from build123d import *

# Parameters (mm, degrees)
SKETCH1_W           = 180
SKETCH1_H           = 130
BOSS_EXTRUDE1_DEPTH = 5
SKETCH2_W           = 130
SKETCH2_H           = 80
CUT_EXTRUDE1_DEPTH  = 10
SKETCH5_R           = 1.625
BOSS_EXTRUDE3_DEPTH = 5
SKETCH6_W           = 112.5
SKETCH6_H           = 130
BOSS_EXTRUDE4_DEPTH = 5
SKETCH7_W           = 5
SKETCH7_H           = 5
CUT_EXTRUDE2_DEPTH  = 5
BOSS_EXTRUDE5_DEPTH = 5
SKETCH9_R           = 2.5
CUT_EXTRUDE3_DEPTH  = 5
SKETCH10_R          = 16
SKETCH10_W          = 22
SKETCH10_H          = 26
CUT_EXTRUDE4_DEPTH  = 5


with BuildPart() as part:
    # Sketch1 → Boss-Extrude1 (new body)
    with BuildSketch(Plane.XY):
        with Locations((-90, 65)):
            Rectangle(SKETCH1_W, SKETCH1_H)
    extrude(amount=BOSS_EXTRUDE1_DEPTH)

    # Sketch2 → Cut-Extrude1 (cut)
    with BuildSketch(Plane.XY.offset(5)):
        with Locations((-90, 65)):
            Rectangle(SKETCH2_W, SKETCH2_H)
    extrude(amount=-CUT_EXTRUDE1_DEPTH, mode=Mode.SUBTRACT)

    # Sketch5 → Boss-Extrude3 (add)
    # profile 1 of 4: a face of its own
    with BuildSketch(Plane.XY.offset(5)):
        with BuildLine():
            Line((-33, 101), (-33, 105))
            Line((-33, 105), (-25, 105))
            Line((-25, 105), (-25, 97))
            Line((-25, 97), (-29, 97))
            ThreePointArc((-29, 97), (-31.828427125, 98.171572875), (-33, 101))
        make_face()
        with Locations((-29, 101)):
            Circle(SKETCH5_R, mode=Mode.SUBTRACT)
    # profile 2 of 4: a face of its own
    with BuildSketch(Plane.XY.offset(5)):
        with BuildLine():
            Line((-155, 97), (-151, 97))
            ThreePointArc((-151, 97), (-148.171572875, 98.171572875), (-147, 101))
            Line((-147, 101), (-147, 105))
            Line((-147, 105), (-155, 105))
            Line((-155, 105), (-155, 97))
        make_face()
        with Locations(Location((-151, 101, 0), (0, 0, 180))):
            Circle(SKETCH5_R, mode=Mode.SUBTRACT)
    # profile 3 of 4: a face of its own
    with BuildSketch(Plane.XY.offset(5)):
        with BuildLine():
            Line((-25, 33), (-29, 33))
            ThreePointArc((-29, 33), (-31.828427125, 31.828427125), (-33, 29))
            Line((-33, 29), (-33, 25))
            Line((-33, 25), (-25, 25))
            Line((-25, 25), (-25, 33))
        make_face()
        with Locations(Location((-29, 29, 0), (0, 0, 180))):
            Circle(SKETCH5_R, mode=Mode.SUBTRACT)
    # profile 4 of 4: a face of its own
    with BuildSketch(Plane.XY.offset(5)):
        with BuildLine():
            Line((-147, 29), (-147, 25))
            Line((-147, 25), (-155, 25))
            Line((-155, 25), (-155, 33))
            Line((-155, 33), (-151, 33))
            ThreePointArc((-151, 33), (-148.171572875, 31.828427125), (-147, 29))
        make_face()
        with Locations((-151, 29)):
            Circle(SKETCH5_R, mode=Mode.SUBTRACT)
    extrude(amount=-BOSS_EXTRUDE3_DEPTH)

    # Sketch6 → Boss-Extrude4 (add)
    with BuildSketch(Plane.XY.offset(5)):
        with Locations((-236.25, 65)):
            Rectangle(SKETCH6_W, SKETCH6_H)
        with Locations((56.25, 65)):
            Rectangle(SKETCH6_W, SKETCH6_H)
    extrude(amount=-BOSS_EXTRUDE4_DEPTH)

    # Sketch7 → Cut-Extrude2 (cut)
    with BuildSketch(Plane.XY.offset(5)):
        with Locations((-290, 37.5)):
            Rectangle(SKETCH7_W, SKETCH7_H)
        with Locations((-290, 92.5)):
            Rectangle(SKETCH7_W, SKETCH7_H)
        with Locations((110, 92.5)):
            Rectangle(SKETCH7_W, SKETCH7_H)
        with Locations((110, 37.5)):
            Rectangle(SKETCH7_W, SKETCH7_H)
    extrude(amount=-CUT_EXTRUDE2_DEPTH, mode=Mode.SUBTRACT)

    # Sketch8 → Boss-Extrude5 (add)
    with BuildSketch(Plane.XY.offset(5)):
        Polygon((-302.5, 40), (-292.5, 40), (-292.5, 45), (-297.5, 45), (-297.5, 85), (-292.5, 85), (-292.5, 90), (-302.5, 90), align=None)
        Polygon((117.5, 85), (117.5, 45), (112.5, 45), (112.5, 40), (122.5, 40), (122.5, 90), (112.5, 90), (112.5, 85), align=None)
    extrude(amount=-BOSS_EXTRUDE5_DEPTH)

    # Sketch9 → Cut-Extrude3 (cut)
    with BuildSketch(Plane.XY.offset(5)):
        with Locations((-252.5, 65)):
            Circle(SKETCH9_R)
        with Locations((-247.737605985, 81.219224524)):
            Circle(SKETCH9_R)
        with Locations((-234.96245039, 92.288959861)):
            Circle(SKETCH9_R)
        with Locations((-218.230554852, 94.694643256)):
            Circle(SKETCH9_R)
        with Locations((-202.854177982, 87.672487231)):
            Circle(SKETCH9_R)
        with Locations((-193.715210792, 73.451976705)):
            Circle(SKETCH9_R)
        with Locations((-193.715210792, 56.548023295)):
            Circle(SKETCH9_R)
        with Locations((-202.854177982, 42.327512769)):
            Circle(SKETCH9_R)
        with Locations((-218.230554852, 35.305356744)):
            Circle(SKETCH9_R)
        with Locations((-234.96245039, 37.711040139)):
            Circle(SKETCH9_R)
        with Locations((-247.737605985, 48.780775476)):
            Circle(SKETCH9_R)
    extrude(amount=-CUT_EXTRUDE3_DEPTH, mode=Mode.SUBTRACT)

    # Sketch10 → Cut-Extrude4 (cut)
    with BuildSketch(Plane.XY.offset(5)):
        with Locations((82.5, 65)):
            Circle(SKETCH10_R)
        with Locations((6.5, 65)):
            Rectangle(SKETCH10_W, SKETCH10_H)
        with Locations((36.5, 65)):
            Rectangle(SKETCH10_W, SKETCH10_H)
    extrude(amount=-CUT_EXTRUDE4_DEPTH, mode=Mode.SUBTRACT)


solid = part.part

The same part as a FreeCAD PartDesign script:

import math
import FreeCAD as App
import Part
import Sketcher
from FreeCAD import Vector
Q = App.Units.Quantity


def add_polygon(sketch, points):
    """Adds a closed chain of lines whose ends are joined by coincident constraints."""
    first, n = sketch.GeometryCount, len(points)
    for a, b in zip(points, points[1:] + points[:1]):
        sketch.addGeometry(Part.LineSegment(App.Vector(*a, 0), App.Vector(*b, 0)), False)
    for i in range(n):
        sketch.addConstraint(Sketcher.Constraint("Coincident", first + i, 2, first + (i + 1) % n, 1))

doc = App.newDocument("Part")
params = doc.addObject("Spreadsheet::Sheet", "Params")
for row, (alias, value) in enumerate([
    ("sketch1_width", "180 mm"),
    ("sketch1_height", "130 mm"),
    ("pad1_length", "5 mm"),
    ("sketch2_width", "130 mm"),
    ("sketch2_height", "80 mm"),
    ("pocket1_length", "10 mm"),
    ("sketch3_radius", "4 mm"),
    ("sketch3_diameter", "3.25 mm"),
    ("sketch3_width", "4 mm"),
    ("pad2_length", "5 mm"),
    ("sketch4_height", "130 mm"),
    ("sketch4_width", "112.5 mm"),
    ("pad3_length", "5 mm"),
    ("sketch5_width", "5 mm"),
    ("pocket2_length", "5 mm"),
    ("sketch6_width", "10 mm"),
    ("sketch6_width2", "5 mm"),
    ("sketch6_height", "40 mm"),
    ("pad4_length", "5 mm"),
    ("sketch7_diameter", "5 mm"),
    ("pocket3_length", "5 mm"),
    ("sketch8_diameter", "32 mm"),
    ("sketch8_width", "22 mm"),
    ("sketch8_height", "26 mm"),
    ("pocket4_length", "5 mm"),
], start=1):
    params.set(f"A{row}", alias)
    params.set(f"B{row}", "=" + value)
    params.setAlias(f"B{row}", alias)

body = doc.addObject("PartDesign::Body", "Body")

sketch1 = doc.addObject("Sketcher::SketchObject", "Sketch")
body.addObject(sketch1)
sketch1.AttachmentSupport = (doc.XY_Plane, [""])
sketch1.MapMode = "FlatFace"
add_polygon(sketch1, [(-180, 130), (-180, 0), (0, 0), (0, 130)])
sketch1.addConstraint([
    Sketcher.Constraint("Vertical", 0),
    Sketcher.Constraint("Horizontal", 1),
    Sketcher.Constraint("Vertical", 2),
    Sketcher.Constraint("Horizontal", 3),
    Sketcher.Constraint("Coincident", 1, 2, -1, 1),
    Sketcher.Constraint("DistanceX", 1, 1, 1, 2, Q("180 mm")),
    Sketcher.Constraint("DistanceY", 0, 2, 0, 1, Q("130 mm")),
])
sketch1.setExpression("Constraints[9]", "Params.sketch1_width")
sketch1.setExpression("Constraints[10]", "Params.sketch1_height")
pad1 = doc.addObject("PartDesign::Pad", "Pad")
body.addObject(pad1)
pad1.Profile = sketch1
pad1.setExpression("Length", "Params.pad1_length")

sketch2 = doc.addObject("Sketcher::SketchObject", "Sketch001")
body.addObject(sketch2)
sketch2.AttachmentSupport = (doc.XY_Plane, [""])
sketch2.MapMode = "FlatFace"
sketch2.AttachmentOffset = App.Placement(Vector(0, 0, 5), App.Rotation())
add_polygon(sketch2, [(-155, 105), (-155, 25), (-25, 25), (-25, 105)])
sketch2.addConstraint([
    Sketcher.Constraint("Vertical", 0),
    Sketcher.Constraint("Horizontal", 1),
    Sketcher.Constraint("Vertical", 2),
    Sketcher.Constraint("Horizontal", 3),
    Sketcher.Constraint("DistanceX", 1, 1, 1, 2, Q("130 mm")),
    Sketcher.Constraint("DistanceY", 0, 2, 0, 1, Q("80 mm")),
    Sketcher.Constraint("DistanceX", 0, 2, -1, 1, Q("155 mm")),
    Sketcher.Constraint("DistanceY", -1, 1, 0, 2, Q("25 mm")),
])
sketch2.setExpression("Constraints[8]", "Params.sketch2_width")
sketch2.setExpression("Constraints[9]", "Params.sketch2_height")
pocket1 = doc.addObject("PartDesign::Pocket", "Pocket")
body.addObject(pocket1)
pocket1.Profile = sketch2
pocket1.setExpression("Length", "Params.pocket1_length")

sketch3 = doc.addObject("Sketcher::SketchObject", "Sketch002")
body.addObject(sketch3)
sketch3.AttachmentSupport = (doc.XY_Plane, [""])
sketch3.MapMode = "FlatFace"
sketch3.AttachmentOffset = App.Placement(Vector(0, 0, 5), App.Rotation())
sketch3.addGeometry([
    Part.LineSegment(Vector(-33, 105, 0), Vector(-33, 101, 0)),
    Part.ArcOfCircle(Part.Circle(Vector(-29, 101, 0), Vector(0, 0, 1), 4), math.radians(180), math.radians(270)),
    Part.LineSegment(Vector(-29, 97, 0), Vector(-25, 97, 0)),
    Part.LineSegment(Vector(-25, 97, 0), Vector(-25, 105, 0)),
    Part.LineSegment(Vector(-25, 105, 0), Vector(-33, 105, 0)),
    Part.Circle(Vector(-29, 101, 0), Vector(0, 0, 1), 1.625),
    Part.LineSegment(Vector(-155, 97, 0), Vector(-151, 97, 0)),
    Part.ArcOfCircle(Part.Circle(Vector(-151, 101, 0), Vector(0, 0, 1), 4), math.radians(-90), math.radians(0)),
    Part.LineSegment(Vector(-147, 101, 0), Vector(-147, 105, 0)),
    Part.LineSegment(Vector(-147, 105, 0), Vector(-155, 105, 0)),
    Part.LineSegment(Vector(-155, 105, 0), Vector(-155, 97, 0)),
    Part.Circle(Vector(-151, 101, 0), Vector(0, 0, 1), 1.625),
    Part.LineSegment(Vector(-25, 33, 0), Vector(-29, 33, 0)),
    Part.ArcOfCircle(Part.Circle(Vector(-29, 29, 0), Vector(0, 0, 1), 4), math.radians(90), math.radians(180)),
    Part.LineSegment(Vector(-33, 29, 0), Vector(-33, 25, 0)),
    Part.LineSegment(Vector(-33, 25, 0), Vector(-25, 25, 0)),
    Part.LineSegment(Vector(-25, 25, 0), Vector(-25, 33, 0)),
    Part.Circle(Vector(-29, 29, 0), Vector(0, 0, 1), 1.625),
    Part.LineSegment(Vector(-147, 25, 0), Vector(-147, 29, 0)),
    Part.ArcOfCircle(Part.Circle(Vector(-151, 29, 0), Vector(0, 0, 1), 4), math.radians(0), math.radians(90)),
    Part.LineSegment(Vector(-151, 33, 0), Vector(-155, 33, 0)),
    Part.LineSegment(Vector(-155, 33, 0), Vector(-155, 25, 0)),
    Part.LineSegment(Vector(-155, 25, 0), Vector(-147, 25, 0)),
    Part.Circle(Vector(-151, 29, 0), Vector(0, 0, 1), 1.625),
], False)
sketch3.addConstraint([
    Sketcher.Constraint("Tangent", 0, 2, 1, 1),
    Sketcher.Constraint("Tangent", 1, 2, 2, 1),
    Sketcher.Constraint("Coincident", 2, 2, 3, 1),
    Sketcher.Constraint("Coincident", 3, 2, 4, 1),
    Sketcher.Constraint("Coincident", 4, 2, 0, 1),
    Sketcher.Constraint("Tangent", 6, 2, 7, 1),
    Sketcher.Constraint("Tangent", 7, 2, 8, 1),
    Sketcher.Constraint("Coincident", 8, 2, 9, 1),
    Sketcher.Constraint("Coincident", 9, 2, 10, 1),
    Sketcher.Constraint("Coincident", 10, 2, 6, 1),
    Sketcher.Constraint("Tangent", 12, 2, 13, 1),
    Sketcher.Constraint("Tangent", 13, 2, 14, 1),
    Sketcher.Constraint("Coincident", 14, 2, 15, 1),
    Sketcher.Constraint("Coincident", 15, 2, 16, 1),
    Sketcher.Constraint("Coincident", 16, 2, 12, 1),
    Sketcher.Constraint("Tangent", 18, 2, 19, 1),
    Sketcher.Constraint("Tangent", 19, 2, 20, 1),
    Sketcher.Constraint("Coincident", 20, 2, 21, 1),
    Sketcher.Constraint("Coincident", 21, 2, 22, 1),
    Sketcher.Constraint("Coincident", 22, 2, 18, 1),
    Sketcher.Constraint("Vertical", 0),
    Sketcher.Constraint("Horizontal", 2),
    Sketcher.Constraint("Vertical", 3),
    Sketcher.Constraint("Horizontal", 4),
    Sketcher.Constraint("Horizontal", 6),
    Sketcher.Constraint("Vertical", 8),
    Sketcher.Constraint("Horizontal", 9),
    Sketcher.Constraint("Vertical", 10),
    Sketcher.Constraint("Horizontal", 12),
    Sketcher.Constraint("Vertical", 14),
    Sketcher.Constraint("Horizontal", 15),
    Sketcher.Constraint("Vertical", 16),
    Sketcher.Constraint("Vertical", 18),
    Sketcher.Constraint("Horizontal", 20),
    Sketcher.Constraint("Vertical", 21),
    Sketcher.Constraint("Horizontal", 22),
    Sketcher.Constraint("Coincident", 5, 3, 1, 3),
    Sketcher.Constraint("Coincident", 11, 3, 7, 3),
    Sketcher.Constraint("Coincident", 17, 3, 13, 3),
    Sketcher.Constraint("Coincident", 23, 3, 19, 3),
    Sketcher.Constraint("Equal", 1, 7),
    Sketcher.Constraint("Equal", 5, 11),
    Sketcher.Constraint("Equal", 7, 13),
    Sketcher.Constraint("Equal", 11, 17),
    Sketcher.Constraint("Equal", 13, 19),
    Sketcher.Constraint("Equal", 17, 23),
    Sketcher.Constraint("Horizontal", 5, 3, 7, 3),
    Sketcher.Constraint("Horizontal", 17, 3, 19, 3),
    Sketcher.Constraint("Horizontal", 4, 2, 8, 2),
    Sketcher.Constraint("Horizontal", 15, 2, 21, 2),
    Sketcher.Constraint("Vertical", 5, 3, 13, 3),
    Sketcher.Constraint("Vertical", 11, 3, 19, 3),
    Sketcher.Constraint("Vertical", 3, 2, 15, 2),
    Sketcher.Constraint("Vertical", 10, 2, 20, 2),
    Sketcher.Constraint("Equal", 2, 6),
    Sketcher.Constraint("Equal", 20, 0),
    Sketcher.Constraint("Equal", 8, 14),
    Sketcher.Constraint("Radius", 1, Q("4 mm")),
    Sketcher.Constraint("Diameter", 5, Q("3.25 mm")),
    Sketcher.Constraint("DistanceX", 2, 1, 2, 2, Q("4 mm")),
    Sketcher.Constraint("DistanceX", 1, 3, -1, 1, Q("29 mm")),
    Sketcher.Constraint("DistanceY", -1, 1, 1, 3, Q("101 mm")),
    Sketcher.Constraint("DistanceX", 7, 3, -1, 1, Q("151 mm")),
    Sketcher.Constraint("DistanceY", -1, 1, 13, 3, Q("29 mm")),
])
sketch3.setExpression("Constraints[57]", "Params.sketch3_radius")
sketch3.setExpression("Constraints[58]", "Params.sketch3_diameter")
sketch3.setExpression("Constraints[59]", "Params.sketch3_width")
pad2 = doc.addObject("PartDesign::Pad", "Pad001")
body.addObject(pad2)
pad2.Profile = sketch3
pad2.setExpression("Length", "Params.pad2_length")
pad2.Reversed = True

sketch4 = doc.addObject("Sketcher::SketchObject", "Sketch003")
body.addObject(sketch4)
sketch4.AttachmentSupport = (doc.XY_Plane, [""])
sketch4.MapMode = "FlatFace"
sketch4.AttachmentOffset = App.Placement(Vector(0, 0, 5), App.Rotation())
add_polygon(sketch4, [(-292.5, 130), (-292.5, 0), (-180, 0), (-180, 130)])
add_polygon(sketch4, [(0, 130), (0, 0), (112.5, 0), (112.5, 130)])
sketch4.addConstraint([
    Sketcher.Constraint("Vertical", 0),
    Sketcher.Constraint("Horizontal", 1),
    Sketcher.Constraint("Vertical", 2),
    Sketcher.Constraint("Horizontal", 3),
    Sketcher.Constraint("Vertical", 4),
    Sketcher.Constraint("Horizontal", 5),
    Sketcher.Constraint("Vertical", 6),
    Sketcher.Constraint("Horizontal", 7),
    Sketcher.Constraint("Coincident", 4, 2, -1, 1),
    Sketcher.Constraint("PointOnObject", 0, 2, -1),
    Sketcher.Constraint("Horizontal", 3, 2, 6, 2),
    Sketcher.Constraint("Equal", 3, 5),
    Sketcher.Constraint("DistanceY", 0, 2, 0, 1, Q("130 mm")),
    Sketcher.Constraint("DistanceX", 1, 1, 1, 2, Q("112.5 mm")),
    Sketcher.Constraint("DistanceX", 1, 2, -1, 1, Q("180 mm")),
])
sketch4.setExpression("Constraints[20]", "Params.sketch4_height")
sketch4.setExpression("Constraints[21]", "Params.sketch4_width")
pad3 = doc.addObject("PartDesign::Pad", "Pad002")
body.addObject(pad3)
pad3.Profile = sketch4
pad3.setExpression("Length", "Params.pad3_length")
pad3.Reversed = True

sketch5 = doc.addObject("Sketcher::SketchObject", "Sketch004")
body.addObject(sketch5)
sketch5.AttachmentSupport = (doc.XY_Plane, [""])
sketch5.MapMode = "FlatFace"
sketch5.AttachmentOffset = App.Placement(Vector(0, 0, 5), App.Rotation())
add_polygon(sketch5, [(-292.5, 40), (-292.5, 35), (-287.5, 35), (-287.5, 40)])
add_polygon(sketch5, [(-292.5, 95), (-292.5, 90), (-287.5, 90), (-287.5, 95)])
add_polygon(sketch5, [(107.5, 95), (107.5, 90), (112.5, 90), (112.5, 95)])
add_polygon(sketch5, [(107.5, 40), (107.5, 35), (112.5, 35), (112.5, 40)])
sketch5.addConstraint([
    Sketcher.Constraint("Vertical", 0),
    Sketcher.Constraint("Horizontal", 1),
    Sketcher.Constraint("Vertical", 2),
    Sketcher.Constraint("Horizontal", 3),
    Sketcher.Constraint("Vertical", 4),
    Sketcher.Constraint("Horizontal", 5),
    Sketcher.Constraint("Vertical", 6),
    Sketcher.Constraint("Horizontal", 7),
    Sketcher.Constraint("Vertical", 8),
    Sketcher.Constraint("Horizontal", 9),
    Sketcher.Constraint("Vertical", 10),
    Sketcher.Constraint("Horizontal", 11),
    Sketcher.Constraint("Vertical", 12),
    Sketcher.Constraint("Horizontal", 13),
    Sketcher.Constraint("Vertical", 14),
    Sketcher.Constraint("Horizontal", 15),
    Sketcher.Constraint("Horizontal", 5, 2, 8, 2),
    Sketcher.Constraint("Horizontal", 7, 2, 10, 2),
    Sketcher.Constraint("Horizontal", 1, 2, 12, 2),
    Sketcher.Constraint("Horizontal", 3, 2, 14, 2),
    Sketcher.Constraint("Vertical", 3, 2, 4, 2),
    Sketcher.Constraint("Vertical", 2, 2, 5, 2),
    Sketcher.Constraint("Vertical", 11, 2, 12, 2),
    Sketcher.Constraint("Vertical", 10, 2, 13, 2),
    Sketcher.Constraint("Equal", 7, 9),
    Sketcher.Constraint("Equal", 15, 0),
    Sketcher.Constraint("Equal", 2, 4),
    Sketcher.Constraint("DistanceX", 1, 1, 1, 2, Q("5 mm")),
    Sketcher.Constraint("DistanceY", -1, 1, 0, 2, Q("35 mm")),
    Sketcher.Constraint("DistanceY", -1, 1, 4, 2, Q("90 mm")),
    Sketcher.Constraint("DistanceX", 5, 2, 8, 2, Q("395 mm")),
    Sketcher.Constraint("DistanceX", 0, 2, -1, 1, Q("292.5 mm")),
])
sketch5.setExpression("Constraints[43]", "Params.sketch5_width")
pocket2 = doc.addObject("PartDesign::Pocket", "Pocket001")
body.addObject(pocket2)
pocket2.Profile = sketch5
pocket2.setExpression("Length", "Params.pocket2_length")

sketch6 = doc.addObject("Sketcher::SketchObject", "Sketch005")
body.addObject(sketch6)
sketch6.AttachmentSupport = (doc.XY_Plane, [""])
sketch6.MapMode = "FlatFace"
sketch6.AttachmentOffset = App.Placement(Vector(0, 0, 5), App.Rotation())
add_polygon(sketch6, [(-302.5, 40), (-292.5, 40), (-292.5, 45), (-297.5, 45), (-297.5, 85), (-292.5, 85), (-292.5, 90), (-302.5, 90)])
add_polygon(sketch6, [(117.5, 85), (117.5, 45), (112.5, 45), (112.5, 40), (122.5, 40), (122.5, 90), (112.5, 90), (112.5, 85)])
sketch6.addConstraint([
    Sketcher.Constraint("Horizontal", 0),
    Sketcher.Constraint("Vertical", 1),
    Sketcher.Constraint("Horizontal", 2),
    Sketcher.Constraint("Vertical", 3),
    Sketcher.Constraint("Horizontal", 4),
    Sketcher.Constraint("Vertical", 5),
    Sketcher.Constraint("Horizontal", 6),
    Sketcher.Constraint("Vertical", 7),
    Sketcher.Constraint("Vertical", 8),
    Sketcher.Constraint("Horizontal", 9),
    Sketcher.Constraint("Vertical", 10),
    Sketcher.Constraint("Horizontal", 11),
    Sketcher.Constraint("Vertical", 12),
    Sketcher.Constraint("Horizontal", 13),
    Sketcher.Constraint("Vertical", 14),
    Sketcher.Constraint("Horizontal", 15),
    Sketcher.Constraint("Horizontal", 2, 2, 8, 2),
    Sketcher.Constraint("Horizontal", 7, 2, 10, 2),
    Sketcher.Constraint("Horizontal", 6, 2, 12, 2),
    Sketcher.Constraint("Horizontal", 4, 2, 14, 2),
    Sketcher.Constraint("Vertical", 1, 2, 4, 2),
    Sketcher.Constraint("Vertical", 10, 2, 13, 2),
    Sketcher.Constraint("Equal", 4, 9),
    Sketcher.Constraint("Equal", 6, 11),
    Sketcher.Constraint("Equal", 15, 1),
    Sketcher.Constraint("Equal", 1, 5),
    Sketcher.Constraint("DistanceX", 0, 1, 0, 2, Q("10 mm")),
    Sketcher.Constraint("DistanceX", 2, 2, 2, 1, Q("5 mm")),
    Sketcher.Constraint("DistanceY", 3, 1, 3, 2, Q("40 mm")),
    Sketcher.Constraint("DistanceY", -1, 1, 0, 2, Q("40 mm")),
    Sketcher.Constraint("DistanceX", 1, 2, 8, 2, Q("410 mm")),
    Sketcher.Constraint("DistanceX", 0, 2, -1, 1, Q("292.5 mm")),
])
sketch6.setExpression("Constraints[42]", "Params.sketch6_width")
sketch6.setExpression("Constraints[43]", "Params.sketch6_width2")
sketch6.setExpression("Constraints[44]", "Params.sketch6_height")
pad4 = doc.addObject("PartDesign::Pad", "Pad003")
body.addObject(pad4)
pad4.Profile = sketch6
pad4.setExpression("Length", "Params.pad4_length")
pad4.Reversed = True

sketch7 = doc.addObject("Sketcher::SketchObject", "Sketch006")
body.addObject(sketch7)
sketch7.AttachmentSupport = (doc.XY_Plane, [""])
sketch7.MapMode = "FlatFace"
sketch7.AttachmentOffset = App.Placement(Vector(0, 0, 5), App.Rotation())
sketch7.addGeometry([
    Part.Circle(Vector(-252.5, 65, 0), Vector(0, 0, 1), 2.5),
    Part.Circle(Vector(-247.737606, 81.219225, 0), Vector(0, 0, 1), 2.5),
    Part.Circle(Vector(-234.96245, 92.28896, 0), Vector(0, 0, 1), 2.5),
    Part.Circle(Vector(-218.230555, 94.694643, 0), Vector(0, 0, 1), 2.5),
    Part.Circle(Vector(-202.854178, 87.672487, 0), Vector(0, 0, 1), 2.5),
    Part.Circle(Vector(-193.715211, 73.451977, 0), Vector(0, 0, 1), 2.5),
    Part.Circle(Vector(-193.715211, 56.548023, 0), Vector(0, 0, 1), 2.5),
    Part.Circle(Vector(-202.854178, 42.327513, 0), Vector(0, 0, 1), 2.5),
    Part.Circle(Vector(-218.230555, 35.305357, 0), Vector(0, 0, 1), 2.5),
    Part.Circle(Vector(-234.96245, 37.71104, 0), Vector(0, 0, 1), 2.5),
    Part.Circle(Vector(-247.737606, 48.780775, 0), Vector(0, 0, 1), 2.5),
], False)
sketch7.addConstraint([
    Sketcher.Constraint("Equal", 0, 1),
    Sketcher.Constraint("Equal", 1, 2),
    Sketcher.Constraint("Equal", 2, 3),
    Sketcher.Constraint("Equal", 3, 4),
    Sketcher.Constraint("Equal", 4, 5),
    Sketcher.Constraint("Equal", 5, 6),
    Sketcher.Constraint("Equal", 6, 7),
    Sketcher.Constraint("Equal", 7, 8),
    Sketcher.Constraint("Equal", 8, 9),
    Sketcher.Constraint("Equal", 9, 10),
    Sketcher.Constraint("Vertical", 5, 3, 6, 3),
    Sketcher.Constraint("Vertical", 4, 3, 7, 3),
    Sketcher.Constraint("Vertical", 3, 3, 8, 3),
    Sketcher.Constraint("Vertical", 2, 3, 9, 3),
    Sketcher.Constraint("Vertical", 1, 3, 10, 3),
    Sketcher.Constraint("Diameter", 0, Q("5 mm")),
    Sketcher.Constraint("DistanceY", -1, 1, 0, 3, Q("65 mm")),
    Sketcher.Constraint("DistanceX", 0, 3, -1, 1, Q("252.5 mm")),
    Sketcher.Constraint("DistanceX", 2, 3, -1, 1, Q("234.96245 mm")),
    Sketcher.Constraint("DistanceY", -1, 1, 2, 3, Q("92.28896 mm")),
    Sketcher.Constraint("DistanceX", 5, 3, -1, 1, Q("193.715211 mm")),
    Sketcher.Constraint("DistanceY", -1, 1, 9, 3, Q("37.71104 mm")),
    Sketcher.Constraint("DistanceX", 1, 3, 3, 3, Q("29.507051 mm")),
    Sketcher.Constraint("DistanceY", 1, 3, 3, 3, Q("13.475419 mm")),
    Sketcher.Constraint("DistanceX", 1, 3, 4, 3, Q("44.883428 mm")),
    Sketcher.Constraint("DistanceY", 5, 3, 4, 3, Q("14.220511 mm")),
    Sketcher.Constraint("DistanceY", 6, 3, 3, 3, Q("38.14662 mm")),
    Sketcher.Constraint("DistanceY", 7, 3, 6, 3, Q("14.220511 mm")),
    Sketcher.Constraint("DistanceY", 8, 3, 5, 3, Q("38.14662 mm")),
    Sketcher.Constraint("DistanceY", 8, 3, 10, 3, Q("13.475419 mm")),
    Sketcher.Constraint("DistanceY", 10, 3, 1, 3, Q("32.438449 mm")),
    Sketcher.Constraint("DistanceX", 1, 3, -1, 1, Q("247.737606 mm")),
    Sketcher.Constraint("DistanceY", -1, 1, 1, 3, Q("81.219225 mm")),
])
sketch7.setExpression("Constraints[15]", "Params.sketch7_diameter")
pocket3 = doc.addObject("PartDesign::Pocket", "Pocket002")
body.addObject(pocket3)
pocket3.Profile = sketch7
pocket3.setExpression("Length", "Params.pocket3_length")

sketch8 = doc.addObject("Sketcher::SketchObject", "Sketch007")
body.addObject(sketch8)
sketch8.AttachmentSupport = (doc.XY_Plane, [""])
sketch8.MapMode = "FlatFace"
sketch8.AttachmentOffset = App.Placement(Vector(0, 0, 5), App.Rotation())
sketch8.addGeometry(Part.Circle(Vector(82.5, 65, 0), Vector(0, 0, 1), 16), False)
add_polygon(sketch8, [(-4.5, 78), (-4.5, 52), (17.5, 52), (17.5, 78)])
add_polygon(sketch8, [(25.5, 78), (25.5, 52), (47.5, 52), (47.5, 78)])
sketch8.addConstraint([
    Sketcher.Constraint("Vertical", 1),
    Sketcher.Constraint("Horizontal", 2),
    Sketcher.Constraint("Vertical", 3),
    Sketcher.Constraint("Horizontal", 4),
    Sketcher.Constraint("Vertical", 5),
    Sketcher.Constraint("Horizontal", 6),
    Sketcher.Constraint("Vertical", 7),
    Sketcher.Constraint("Horizontal", 8),
    Sketcher.Constraint("Horizontal", 2, 2, 5, 2),
    Sketcher.Constraint("Horizontal", 4, 2, 7, 2),
    Sketcher.Constraint("Equal", 4, 6),
    Sketcher.Constraint("Diameter", 0, Q("32 mm")),
    Sketcher.Constraint("DistanceX", 2, 1, 2, 2, Q("22 mm")),
    Sketcher.Constraint("DistanceY", 1, 2, 1, 1, Q("26 mm")),
    Sketcher.Constraint("DistanceY", -1, 1, 0, 3, Q("65 mm")),
    Sketcher.Constraint("DistanceY", -1, 1, 1, 2, Q("52 mm")),
    Sketcher.Constraint("DistanceX", 1, 2, 0, 3, Q("87 mm")),
    Sketcher.Constraint("DistanceX", 2, 2, 5, 2, Q("8 mm")),
    Sketcher.Constraint("DistanceX", -1, 1, 0, 3, Q("82.5 mm")),
])
sketch8.setExpression("Constraints[19]", "Params.sketch8_diameter")
sketch8.setExpression("Constraints[20]", "Params.sketch8_width")
sketch8.setExpression("Constraints[21]", "Params.sketch8_height")
pocket4 = doc.addObject("PartDesign::Pocket", "Pocket003")
body.addObject(pocket4)
pocket4.Profile = sketch8
pocket4.setExpression("Length", "Params.pocket4_length")

doc.recompute()
